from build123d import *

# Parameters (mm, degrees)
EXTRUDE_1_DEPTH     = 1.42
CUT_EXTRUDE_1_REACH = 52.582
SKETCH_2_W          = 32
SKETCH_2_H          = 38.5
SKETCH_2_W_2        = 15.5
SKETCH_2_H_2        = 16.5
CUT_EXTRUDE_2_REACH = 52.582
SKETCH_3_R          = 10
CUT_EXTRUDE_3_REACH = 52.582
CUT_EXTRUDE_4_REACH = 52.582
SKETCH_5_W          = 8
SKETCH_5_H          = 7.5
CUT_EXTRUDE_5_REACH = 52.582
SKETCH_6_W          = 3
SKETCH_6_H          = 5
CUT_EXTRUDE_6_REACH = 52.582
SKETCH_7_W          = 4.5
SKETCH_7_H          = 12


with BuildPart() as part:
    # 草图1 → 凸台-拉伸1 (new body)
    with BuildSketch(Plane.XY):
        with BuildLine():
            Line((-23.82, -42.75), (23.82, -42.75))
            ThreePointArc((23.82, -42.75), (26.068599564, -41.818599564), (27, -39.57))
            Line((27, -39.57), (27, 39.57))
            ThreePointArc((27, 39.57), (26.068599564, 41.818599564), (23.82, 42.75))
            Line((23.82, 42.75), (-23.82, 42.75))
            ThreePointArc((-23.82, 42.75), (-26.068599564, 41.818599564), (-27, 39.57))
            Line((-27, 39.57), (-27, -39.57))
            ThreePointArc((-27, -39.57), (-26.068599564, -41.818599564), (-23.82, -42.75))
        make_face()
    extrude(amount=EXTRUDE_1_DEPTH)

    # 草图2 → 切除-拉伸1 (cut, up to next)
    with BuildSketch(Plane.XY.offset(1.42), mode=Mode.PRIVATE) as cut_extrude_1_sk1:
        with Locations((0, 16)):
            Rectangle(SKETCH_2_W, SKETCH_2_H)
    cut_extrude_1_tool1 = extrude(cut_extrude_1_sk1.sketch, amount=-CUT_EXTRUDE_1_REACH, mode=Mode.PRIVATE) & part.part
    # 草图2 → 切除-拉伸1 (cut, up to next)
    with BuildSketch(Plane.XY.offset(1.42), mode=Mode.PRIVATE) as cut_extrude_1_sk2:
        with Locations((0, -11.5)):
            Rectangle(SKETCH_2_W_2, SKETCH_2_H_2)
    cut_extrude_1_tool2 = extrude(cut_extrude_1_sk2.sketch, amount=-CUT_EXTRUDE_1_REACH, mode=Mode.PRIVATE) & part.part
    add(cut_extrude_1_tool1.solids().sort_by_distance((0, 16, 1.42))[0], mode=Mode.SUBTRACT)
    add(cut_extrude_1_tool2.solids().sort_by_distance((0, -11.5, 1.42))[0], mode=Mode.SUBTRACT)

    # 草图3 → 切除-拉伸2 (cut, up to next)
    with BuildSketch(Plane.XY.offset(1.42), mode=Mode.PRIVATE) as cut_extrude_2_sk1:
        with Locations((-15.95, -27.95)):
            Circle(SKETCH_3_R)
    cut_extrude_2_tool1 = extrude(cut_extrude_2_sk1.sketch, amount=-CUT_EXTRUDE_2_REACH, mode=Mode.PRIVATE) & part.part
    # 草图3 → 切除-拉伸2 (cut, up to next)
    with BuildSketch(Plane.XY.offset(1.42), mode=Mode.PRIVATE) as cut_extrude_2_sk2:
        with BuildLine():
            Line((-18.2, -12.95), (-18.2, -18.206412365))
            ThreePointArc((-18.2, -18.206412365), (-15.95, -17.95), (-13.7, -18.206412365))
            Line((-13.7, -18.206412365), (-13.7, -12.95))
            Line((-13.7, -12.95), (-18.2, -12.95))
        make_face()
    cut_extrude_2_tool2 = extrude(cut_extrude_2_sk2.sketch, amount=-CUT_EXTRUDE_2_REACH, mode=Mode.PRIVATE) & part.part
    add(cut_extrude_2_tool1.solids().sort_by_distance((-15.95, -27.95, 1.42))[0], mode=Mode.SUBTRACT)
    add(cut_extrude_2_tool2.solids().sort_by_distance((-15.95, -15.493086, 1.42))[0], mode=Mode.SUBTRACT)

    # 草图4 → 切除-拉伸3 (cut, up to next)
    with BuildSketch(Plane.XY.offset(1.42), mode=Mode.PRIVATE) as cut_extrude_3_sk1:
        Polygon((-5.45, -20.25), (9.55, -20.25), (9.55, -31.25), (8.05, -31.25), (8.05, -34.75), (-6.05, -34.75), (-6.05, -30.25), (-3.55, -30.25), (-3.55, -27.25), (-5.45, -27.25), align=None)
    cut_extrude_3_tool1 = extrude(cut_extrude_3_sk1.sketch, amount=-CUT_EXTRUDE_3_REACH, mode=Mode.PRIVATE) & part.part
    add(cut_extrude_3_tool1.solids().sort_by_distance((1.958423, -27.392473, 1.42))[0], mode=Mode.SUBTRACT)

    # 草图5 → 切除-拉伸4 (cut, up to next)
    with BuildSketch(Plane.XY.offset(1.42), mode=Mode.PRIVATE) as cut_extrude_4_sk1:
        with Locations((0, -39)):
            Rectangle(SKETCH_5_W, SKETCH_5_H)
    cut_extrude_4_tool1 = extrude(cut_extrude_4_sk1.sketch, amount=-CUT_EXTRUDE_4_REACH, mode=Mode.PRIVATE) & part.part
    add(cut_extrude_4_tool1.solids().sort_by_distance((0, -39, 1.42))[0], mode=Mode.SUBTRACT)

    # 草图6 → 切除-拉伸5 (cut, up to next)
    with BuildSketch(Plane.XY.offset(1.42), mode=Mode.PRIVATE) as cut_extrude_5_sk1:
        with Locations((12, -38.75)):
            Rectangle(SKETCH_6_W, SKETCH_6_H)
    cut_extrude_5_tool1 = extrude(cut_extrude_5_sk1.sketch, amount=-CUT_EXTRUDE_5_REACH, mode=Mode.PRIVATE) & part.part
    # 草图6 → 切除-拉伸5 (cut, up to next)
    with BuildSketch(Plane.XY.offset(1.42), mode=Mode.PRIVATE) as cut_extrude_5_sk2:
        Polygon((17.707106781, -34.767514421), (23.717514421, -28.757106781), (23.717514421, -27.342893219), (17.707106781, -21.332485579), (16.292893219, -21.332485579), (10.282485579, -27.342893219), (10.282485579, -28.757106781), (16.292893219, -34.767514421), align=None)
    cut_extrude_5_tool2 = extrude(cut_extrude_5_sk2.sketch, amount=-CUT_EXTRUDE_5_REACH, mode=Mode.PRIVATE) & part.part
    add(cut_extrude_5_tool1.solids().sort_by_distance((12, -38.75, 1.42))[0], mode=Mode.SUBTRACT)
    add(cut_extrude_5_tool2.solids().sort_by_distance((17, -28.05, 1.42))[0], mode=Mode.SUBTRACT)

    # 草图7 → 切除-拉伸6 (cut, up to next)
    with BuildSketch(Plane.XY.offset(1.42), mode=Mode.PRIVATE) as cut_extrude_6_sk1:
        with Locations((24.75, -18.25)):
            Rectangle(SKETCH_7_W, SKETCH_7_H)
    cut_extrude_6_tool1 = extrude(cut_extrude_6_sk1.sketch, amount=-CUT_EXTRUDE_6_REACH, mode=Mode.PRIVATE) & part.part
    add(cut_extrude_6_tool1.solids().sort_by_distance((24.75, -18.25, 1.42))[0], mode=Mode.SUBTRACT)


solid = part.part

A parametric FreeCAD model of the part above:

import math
import FreeCAD as App
import Part
import Sketcher
Q = App.Units.Quantity


def add_polygon(sketch, points):
    """Adds a closed chain of lines whose ends are joined by coincident constraints."""
    first, n = sketch.GeometryCount, len(points)
    for a, b in zip(points, points[1:] + points[:1]):
        sketch.addGeometry(Part.LineSegment(App.Vector(*a, 0), App.Vector(*b, 0)), False)
    for i in range(n):
        sketch.addConstraint(Sketcher.Constraint("Coincident", first + i, 2, first + (i + 1) % n, 1))

doc = App.newDocument("Part")
body = doc.addObject("PartDesign::Body", "Body")

# Sketch on XY plane
sketch1 = doc.addObject("Sketcher::SketchObject", "Sketch")
body.addObject(sketch1)
sketch1.AttachmentSupport = (doc.XY_Plane, [""])
sketch1.MapMode = "FlatFace"
sketch1.addGeometry(Part.LineSegment(App.Vector(-23.8, -42.8, 0), App.Vector(23.8, -42.8, 0)), False)
sketch1.addGeometry(Part.ArcOfCircle(Part.Circle(App.Vector(23.8, -39.6, 0), App.Vector(0, 0, 1), 3.2), math.radians(-90), math.radians(0)), False)
sketch1.addGeometry(Part.LineSegment(App.Vector(27, -39.6, 0), App.Vector(27, 39.6, 0)), False)
sketch1.addGeometry(Part.ArcOfCircle(Part.Circle(App.Vector(23.8, 39.6, 0), App.Vector(0, 0, 1), 3.2), math.radians(0), math.radians(90)), False)
sketch1.addGeometry(Part.LineSegment(App.Vector(23.8, 42.8, 0), App.Vector(-23.8, 42.8, 0)), False)
sketch1.addGeometry(Part.ArcOfCircle(Part.Circle(App.Vector(-23.8, 39.6, 0), App.Vector(0, 0, 1), 3.2), math.radians(90), math.radians(180)), False)
sketch1.addGeometry(Part.LineSegment(App.Vector(-27, 39.6, 0), App.Vector(-27, -39.6, 0)), False)
sketch1.addGeometry(Part.ArcOfCircle(Part.Circle(App.Vector(-23.8, -39.6, 0), App.Vector(0, 0, 1), 3.2), math.radians(-180), math.radians(-90)), False)
sketch1.addConstraint(Sketcher.Constraint("Tangent", 0, 2, 1, 1))
sketch1.addConstraint(Sketcher.Constraint("Tangent", 1, 2, 2, 1))
sketch1.addConstraint(Sketcher.Constraint("Tangent", 2, 2, 3, 1))
sketch1.addConstraint(Sketcher.Constraint("Tangent", 3, 2, 4, 1))
sketch1.addConstraint(Sketcher.Constraint("Tangent", 4, 2, 5, 1))
sketch1.addConstraint(Sketcher.Constraint("Tangent", 5, 2, 6, 1))
sketch1.addConstraint(Sketcher.Constraint("Tangent", 6, 2, 7, 1))
sketch1.addConstraint(Sketcher.Constraint("Tangent", 7, 2, 0, 1))
sketch1.addConstraint(Sketcher.Constraint("Horizontal", 0))
sketch1.addConstraint(Sketcher.Constraint("Vertical", 2))
sketch1.addConstraint(Sketcher.Constraint("Horizontal", 4))
sketch1.addConstraint(Sketcher.Constraint("Vertical", 6))
sketch1.addConstraint(Sketcher.Constraint("Equal", 1, 3))
sketch1.addConstraint(Sketcher.Constraint("Equal", 3, 5))
sketch1.addConstraint(Sketcher.Constraint("Equal", 5, 7))
sketch1.addConstraint(Sketcher.Constraint("Symmetric", 1, 3, 5, 3, -1, 1))
sketch1.addConstraint(Sketcher.Constraint("Radius", 1, Q("3.18 mm")))
sketch1.addConstraint(Sketcher.Constraint("DistanceX", -1, 1, 1, 2, Q("27 mm")))
sketch1.addConstraint(Sketcher.Constraint("DistanceY", 2, 1, 2, 2, Q("79.14 mm")))
pad1 = doc.addObject("PartDesign::Pad", "Pad")
body.addObject(pad1)
pad1.Profile = sketch1
pad1.Length = 1.42

# Sketch on XY plane
sketch2 = doc.addObject("Sketcher::SketchObject", "Sketch001")
body.addObject(sketch2)
sketch2.AttachmentSupport = (doc.XY_Plane, [""])
sketch2.MapMode = "FlatFace"
sketch2.AttachmentOffset = App.Placement(App.Vector(0, 0, 1.42), App.Rotation())
add_polygon(sketch2, [(-16, 35), (-16, -3), (16, -3), (16, 35)])  # lines 0-3
sketch2.addConstraint(Sketcher.Constraint("Vertical", 0))
sketch2.addConstraint(Sketcher.Constraint("Horizontal", 1))
sketch2.addConstraint(Sketcher.Constraint("Vertical", 2))
sketch2.addConstraint(Sketcher.Constraint("Horizontal", 3))
sketch2.addConstraint(Sketcher.Constraint("DistanceX", 1, 1, 1, 2, Q("32 mm")))
sketch2.addConstraint(Sketcher.Constraint("DistanceY", 0, 2, 0, 1, Q("38.5 mm")))
sketch2.addConstraint(Sketcher.Constraint("DistanceX", 0, 2, -1, 1, Q("16 mm")))
sketch2.addConstraint(Sketcher.Constraint("DistanceY", 0, 2, -1, 1, Q("3.25 mm")))
pocket1 = doc.addObject("PartDesign::Pocket", "Pocket")
body.addObject(pocket1)
pocket1.Profile = sketch2
pocket1.Type = "UpToFirst"

# Sketch on XY plane
sketch3 = doc.addObject("Sketcher::SketchObject", "Sketch002")
body.addObject(sketch3)
sketch3.AttachmentSupport = (doc.XY_Plane, [""])
sketch3.MapMode = "FlatFace"
sketch3.AttachmentOffset = App.Placement(App.Vector(0, 0, 1.42), App.Rotation())
add_polygon(sketch3, [(-8, -3), (-8, -20), (8, -20), (8, -3)])  # lines 0-3
sketch3.addConstraint(Sketcher.Constraint("Vertical", 0))
sketch3.addConstraint(Sketcher.Constraint("Horizontal", 1))
sketch3.addConstraint(Sketcher.Constraint("Vertical", 2))
sketch3.addConstraint(Sketcher.Constraint("Horizontal", 3))
sketch3.addConstraint(Sketcher.Constraint("DistanceX", 1, 1, 1, 2, Q("15.5 mm")))
sketch3.addConstraint(Sketcher.Constraint("DistanceY", 0, 2, 0, 1, Q("16.5 mm")))
sketch3.addConstraint(Sketcher.Constraint("DistanceX", 0, 2, -1, 1, Q("7.75 mm")))
sketch3.addConstraint(Sketcher.Constraint("DistanceY", 0, 2, -1, 1, Q("19.75 mm")))
pocket2 = doc.addObject("PartDesign::Pocket", "Pocket001")
body.addObject(pocket2)
pocket2.Profile = sketch3
pocket2.Type = "UpToFirst"

# Sketch on XY plane
sketch4 = doc.addObject("Sketcher::SketchObject", "Sketch003")
body.addObject(sketch4)
sketch4.AttachmentSupport = (doc.XY_Plane, [""])
sketch4.MapMode = "FlatFace"
sketch4.AttachmentOffset = App.Placement(App.Vector(0, 0, 1.42), App.Rotation())
sketch4.addGeometry(Part.Circle(App.Vector(-16, -28, 0), App.Vector(0, 0, 1), 10), False)
sketch4.addConstraint(Sketcher.Constraint("Diameter", 0, Q("20 mm")))
sketch4.addConstraint(Sketcher.Constraint("DistanceX", 0, 3, -1, 1, Q("15.95 mm")))
sketch4.addConstraint(Sketcher.Constraint("DistanceY", 0, 3, -1, 1, Q("27.95 mm")))
pocket3 = doc.addObject("PartDesign::Pocket", "Pocket002")
body.addObject(pocket3)
pocket3.Profile = sketch4
pocket3.Type = "UpToFirst"

# Sketch on XY plane
sketch5 = doc.addObject("Sketcher::SketchObject", "Sketch004")
body.addObject(sketch5)
sketch5.AttachmentSupport = (doc.XY_Plane, [""])
sketch5.MapMode = "FlatFace"
sketch5.AttachmentOffset = App.Placement(App.Vector(0, 0, 1.42), App.Rotation())
sketch5.addGeometry(Part.LineSegment(App.Vector(-18.2, -12.9, 0), App.Vector(-18.2, -18.2, 0)), False)
sketch5.addGeometry(Part.ArcOfCircle(Part.Circle(App.Vector(-15.9, -28, 0), App.Vector(0, 0, 1), 10), math.radians(77), math.radians(103)), False)
sketch5.addGeometry(Part.LineSegment(App.Vector(-13.7, -18.2, 0), App.Vector(-13.7, -12.9, 0)), False)
sketch5.addGeometry(Part.LineSegment(App.Vector(-13.7, -12.9, 0), App.Vector(-18.2, -12.9, 0)), False)
sketch5.addConstraint(Sketcher.Constraint("Coincident", 0, 2, 1, 2))
sketch5.addConstraint(Sketcher.Constraint("Coincident", 1, 1, 2, 1))
sketch5.addConstraint(Sketcher.Constraint("Coincident", 2, 2, 3, 1))
sketch5.addConstraint(Sketcher.Constraint("Coincident", 3, 2, 0, 1))
sketch5.addConstraint(Sketcher.Constraint("Vertical", 0))
sketch5.addConstraint(Sketcher.Constraint("Vertical", 2))
sketch5.addConstraint(Sketcher.Constraint("Horizontal", 3))
sketch5.addConstraint(Sketcher.Constraint("Horizontal", 0, 2, 1, 1))
sketch5.addConstraint(Sketcher.Constraint("Radius", 1, Q("10 mm")))
sketch5.addConstraint(Sketcher.Constraint("DistanceX", 3, 2, 3, 1, Q("4.5 mm")))
sketch5.addConstraint(Sketcher.Constraint("DistanceY", 1, 3, 2, 2, Q("15 mm")))
sketch5.addConstraint(Sketcher.Constraint("DistanceX", 0, 2, -1, 1, Q("18.2 mm")))
sketch5.addConstraint(Sketcher.Constraint("DistanceY", 1, 3, -1, 1, Q("27.95 mm")))
pocket4 = doc.addObject("PartDesign::Pocket", "Pocket003")
body.addObject(pocket4)
pocket4.Profile = sketch5
pocket4.Type = "UpToFirst"

# Sketch on XY plane
sketch6 = doc.addObject("Sketcher::SketchObject", "Sketch005")
body.addObject(sketch6)
sketch6.AttachmentSupport = (doc.XY_Plane, [""])
sketch6.MapMode = "FlatFace"
sketch6.AttachmentOffset = App.Placement(App.Vector(0, 0, 1.42), App.Rotation())
add_polygon(sketch6, [(9.6, -20.2), (-5.5, -20.2), (-5.5, -27.2), (-3.5, -27.2), (-3.5, -30.2), (-6, -30.2), (-6, -34.8), (8.1, -34.8), (8.1, -31.2), (9.6, -31.2)])  # lines 0-9
sketch6.addConstraint(Sketcher.Constraint("Horizontal", 0))
sketch6.addConstraint(Sketcher.Constraint("Vertical", 1))
sketch6.addConstraint(Sketcher.Constraint("Horizontal", 2))
sketch6.addConstraint(Sketcher.Constraint("Vertical", 3))
sketch6.addConstraint(Sketcher.Constraint("Horizontal", 4))
sketch6.addConstraint(Sketcher.Constraint("Vertical", 5))
sketch6.addConstraint(Sketcher.Constraint("Horizontal", 6))
sketch6.addConstraint(Sketcher.Constraint("Vertical", 7))
sketch6.addConstraint(Sketcher.Constraint("Horizontal", 8))
sketch6.addConstraint(Sketcher.Constraint("Vertical", 9))
sketch6.addConstraint(Sketcher.Constraint("DistanceX", 0, 2, 0, 1, Q("15 mm")))
sketch6.addConstraint(Sketcher.Constraint("DistanceY", 1, 2, 1, 1, Q("7 mm")))
sketch6.addConstraint(Sketcher.Constraint("DistanceY", 3, 2, 3, 1, Q("3 mm")))
sketch6.addConstraint(Sketcher.Constraint("DistanceY", 9, 1, 9, 2, Q("11 mm")))
sketch6.addConstraint(Sketcher.Constraint("DistanceX", 2, 1, 2, 2, Q("1.9 mm")))
sketch6.addConstraint(Sketcher.Constraint("DistanceX", 4, 2, 4, 1, Q("2.5 mm")))
sketch6.addConstraint(Sketcher.Constraint("DistanceX", 6, 1, 6, 2, Q("14.1 mm")))
sketch6.addConstraint(Sketcher.Constraint("DistanceY", 5, 2, 5, 1, Q("4.5 mm")))
sketch6.addConstraint(Sketcher.Constraint("DistanceX", 0, 2, -1, 1, Q("5.45 mm")))
sketch6.addConstraint(Sketcher.Constraint("DistanceY", 0, 2, -1, 1, Q("20.25 mm")))
pocket5 = doc.addObject("PartDesign::Pocket", "Pocket004")
body.addObject(pocket5)
pocket5.Profile = sketch6
pocket5.Type = "UpToFirst"

# Sketch on XY plane
sketch7 = doc.addObject("Sketcher::SketchObject", "Sketch006")
body.addObject(sketch7)
sketch7.AttachmentSupport = (doc.XY_Plane, [""])
sketch7.MapMode = "FlatFace"
sketch7.AttachmentOffset = App.Placement(App.Vector(0, 0, 1.42), App.Rotation())
add_polygon(sketch7, [(-4, -35), (-4, -43), (4, -43), (4, -35)])  # lines 0-3
sketch7.addConstraint(Sketcher.Constraint("Vertical", 0))
sketch7.addConstraint(Sketcher.Constraint("Horizontal", 1))
sketch7.addConstraint(Sketcher.Constraint("Vertical", 2))
sketch7.addConstraint(Sketcher.Constraint("Horizontal", 3))
sketch7.addConstraint(Sketcher.Constraint("DistanceX", 1, 1, 1, 2, Q("8 mm")))
sketch7.addConstraint(Sketcher.Constraint("DistanceY", 0, 2, 0, 1, Q("7.5 mm")))
sketch7.addConstraint(Sketcher.Constraint("DistanceX", 0, 2, -1, 1, Q("4 mm")))
sketch7.addConstraint(Sketcher.Constraint("DistanceY", 0, 2, -1, 1, Q("42.75 mm")))
pocket6 = doc.addObject("PartDesign::Pocket", "Pocket005")
body.addObject(pocket6)
pocket6.Profile = sketch7
pocket6.Type = "UpToFirst"

# Sketch on XY plane
sketch8 = doc.addObject("Sketcher::SketchObject", "Sketch007")
body.addObject(sketch8)
sketch8.AttachmentSupport = (doc.XY_Plane, [""])
sketch8.MapMode = "FlatFace"
sketch8.AttachmentOffset = App.Placement(App.Vector(0, 0, 1.42), App.Rotation())
add_polygon(sketch8, [(10.5, -36.2), (10.5, -41.2), (13.5, -41.2), (13.5, -36.2)])  # lines 0-3
sketch8.addConstraint(Sketcher.Constraint("Vertical", 0))
sketch8.addConstraint(Sketcher.Constraint("Horizontal", 1))
sketch8.addConstraint(Sketcher.Constraint("Vertical", 2))
sketch8.addConstraint(Sketcher.Constraint("Horizontal", 3))
sketch8.addConstraint(Sketcher.Constraint("DistanceX", 1, 1, 1, 2, Q("3 mm")))
sketch8.addConstraint(Sketcher.Constraint("DistanceY", 0, 2, 0, 1, Q("5 mm")))
sketch8.addConstraint(Sketcher.Constraint("DistanceX", -1, 1, 0, 2, Q("10.5 mm")))
sketch8.addConstraint(Sketcher.Constraint("DistanceY", 0, 2, -1, 1, Q("41.25 mm")))
pocket7 = doc.addObject("PartDesign::Pocket", "Pocket006")
body.addObject(pocket7)
pocket7.Profile = sketch8
pocket7.Type = "UpToFirst"

# Sketch on XY plane
sketch9 = doc.addObject("Sketcher::SketchObject", "Sketch008")
body.addObject(sketch9)
sketch9.AttachmentSupport = (doc.XY_Plane, [""])
sketch9.MapMode = "FlatFace"
sketch9.AttachmentOffset = App.Placement(App.Vector(0, 0, 1.42), App.Rotation())
add_polygon(sketch9, [(17.7, -34.8), (23.7, -28.8), (23.7, -27.3), (17.7, -21.3), (16.3, -21.3), (10.3, -27.3), (10.3, -28.8), (16.3, -34.8)])  # lines 0-7
sketch9.addConstraint(Sketcher.Constraint("Vertical", 1))
sketch9.addConstraint(Sketcher.Constraint("Horizontal", 3))
sketch9.addConstraint(Sketcher.Constraint("Vertical", 5))
sketch9.addConstraint(Sketcher.Constraint("Horizontal", 7))
sketch9.addConstraint(Sketcher.Constraint("Perpendicular", 0, 2))
sketch9.addConstraint(Sketcher.Constraint("Perpendicular", 2, 4))
sketch9.addConstraint(Sketcher.Constraint("Perpendicular", 4, 6))
sketch9.addConstraint(Sketcher.Constraint("Horizontal", 1, 2, 4, 2))
sketch9.addConstraint(Sketcher.Constraint("Horizontal", 0, 2, 5, 2))
sketch9.addConstraint(Sketcher.Constraint("Vertical", 3, 2, 6, 2))
sketch9.addConstraint(Sketcher.Constraint("Vertical", 2, 2, 7, 2))
sketch9.addConstraint(Sketcher.Constraint("Equal", 7, 1))
sketch9.addConstraint(Sketcher.Constraint("Distance", 0, Q("8.5 mm")))
sketch9.addConstraint(Sketcher.Constraint("DistanceX", 3, 2, 3, 1, Q("1.414214 mm")))
sketch9.addConstraint(Sketcher.Constraint("DistanceX", -1, 1, 0, 2, Q("23.717514 mm")))
sketch9.addConstraint(Sketcher.Constraint("DistanceY", 0, 2, -1, 1, Q("28.757107 mm")))
pocket8 = doc.addObject("PartDesign::Pocket", "Pocket007")
body.addObject(pocket8)
pocket8.Profile = sketch9
pocket8.Type = "UpToFirst"

# Sketch on XY plane
sketch10 = doc.addObject("Sketcher::SketchObject", "Sketch009")
body.addObject(sketch10)
sketch10.AttachmentSupport = (doc.XY_Plane, [""])
sketch10.MapMode = "FlatFace"
sketch10.AttachmentOffset = App.Placement(App.Vector(0, 0, 1.42), App.Rotation())
add_polygon(sketch10, [(22.5, -12.2), (22.5, -24.2), (27, -24.2), (27, -12.2)])  # lines 0-3
sketch10.addConstraint(Sketcher.Constraint("Vertical", 0))
sketch10.addConstraint(Sketcher.Constraint("Horizontal", 1))
sketch10.addConstraint(Sketcher.Constraint("Vertical", 2))
sketch10.addConstraint(Sketcher.Constraint("Horizontal", 3))
sketch10.addConstraint(Sketcher.Constraint("DistanceY", 0, 2, 0, 1, Q("12 mm")))
sketch10.addConstraint(Sketcher.Constraint("DistanceX", 1, 1, 1, 2, Q("4.5 mm")))
sketch10.addConstraint(Sketcher.Constraint("DistanceX", -1, 1, 1, 2, Q("27 mm")))
sketch10.addConstraint(Sketcher.Constraint("DistanceY", 0, 2, -1, 1, Q("24.25 mm")))
pocket9 = doc.addObject("PartDesign::Pocket", "Pocket008")
body.addObject(pocket9)
pocket9.Profile = sketch10
pocket9.Type = "UpToFirst"

doc.recompute()
